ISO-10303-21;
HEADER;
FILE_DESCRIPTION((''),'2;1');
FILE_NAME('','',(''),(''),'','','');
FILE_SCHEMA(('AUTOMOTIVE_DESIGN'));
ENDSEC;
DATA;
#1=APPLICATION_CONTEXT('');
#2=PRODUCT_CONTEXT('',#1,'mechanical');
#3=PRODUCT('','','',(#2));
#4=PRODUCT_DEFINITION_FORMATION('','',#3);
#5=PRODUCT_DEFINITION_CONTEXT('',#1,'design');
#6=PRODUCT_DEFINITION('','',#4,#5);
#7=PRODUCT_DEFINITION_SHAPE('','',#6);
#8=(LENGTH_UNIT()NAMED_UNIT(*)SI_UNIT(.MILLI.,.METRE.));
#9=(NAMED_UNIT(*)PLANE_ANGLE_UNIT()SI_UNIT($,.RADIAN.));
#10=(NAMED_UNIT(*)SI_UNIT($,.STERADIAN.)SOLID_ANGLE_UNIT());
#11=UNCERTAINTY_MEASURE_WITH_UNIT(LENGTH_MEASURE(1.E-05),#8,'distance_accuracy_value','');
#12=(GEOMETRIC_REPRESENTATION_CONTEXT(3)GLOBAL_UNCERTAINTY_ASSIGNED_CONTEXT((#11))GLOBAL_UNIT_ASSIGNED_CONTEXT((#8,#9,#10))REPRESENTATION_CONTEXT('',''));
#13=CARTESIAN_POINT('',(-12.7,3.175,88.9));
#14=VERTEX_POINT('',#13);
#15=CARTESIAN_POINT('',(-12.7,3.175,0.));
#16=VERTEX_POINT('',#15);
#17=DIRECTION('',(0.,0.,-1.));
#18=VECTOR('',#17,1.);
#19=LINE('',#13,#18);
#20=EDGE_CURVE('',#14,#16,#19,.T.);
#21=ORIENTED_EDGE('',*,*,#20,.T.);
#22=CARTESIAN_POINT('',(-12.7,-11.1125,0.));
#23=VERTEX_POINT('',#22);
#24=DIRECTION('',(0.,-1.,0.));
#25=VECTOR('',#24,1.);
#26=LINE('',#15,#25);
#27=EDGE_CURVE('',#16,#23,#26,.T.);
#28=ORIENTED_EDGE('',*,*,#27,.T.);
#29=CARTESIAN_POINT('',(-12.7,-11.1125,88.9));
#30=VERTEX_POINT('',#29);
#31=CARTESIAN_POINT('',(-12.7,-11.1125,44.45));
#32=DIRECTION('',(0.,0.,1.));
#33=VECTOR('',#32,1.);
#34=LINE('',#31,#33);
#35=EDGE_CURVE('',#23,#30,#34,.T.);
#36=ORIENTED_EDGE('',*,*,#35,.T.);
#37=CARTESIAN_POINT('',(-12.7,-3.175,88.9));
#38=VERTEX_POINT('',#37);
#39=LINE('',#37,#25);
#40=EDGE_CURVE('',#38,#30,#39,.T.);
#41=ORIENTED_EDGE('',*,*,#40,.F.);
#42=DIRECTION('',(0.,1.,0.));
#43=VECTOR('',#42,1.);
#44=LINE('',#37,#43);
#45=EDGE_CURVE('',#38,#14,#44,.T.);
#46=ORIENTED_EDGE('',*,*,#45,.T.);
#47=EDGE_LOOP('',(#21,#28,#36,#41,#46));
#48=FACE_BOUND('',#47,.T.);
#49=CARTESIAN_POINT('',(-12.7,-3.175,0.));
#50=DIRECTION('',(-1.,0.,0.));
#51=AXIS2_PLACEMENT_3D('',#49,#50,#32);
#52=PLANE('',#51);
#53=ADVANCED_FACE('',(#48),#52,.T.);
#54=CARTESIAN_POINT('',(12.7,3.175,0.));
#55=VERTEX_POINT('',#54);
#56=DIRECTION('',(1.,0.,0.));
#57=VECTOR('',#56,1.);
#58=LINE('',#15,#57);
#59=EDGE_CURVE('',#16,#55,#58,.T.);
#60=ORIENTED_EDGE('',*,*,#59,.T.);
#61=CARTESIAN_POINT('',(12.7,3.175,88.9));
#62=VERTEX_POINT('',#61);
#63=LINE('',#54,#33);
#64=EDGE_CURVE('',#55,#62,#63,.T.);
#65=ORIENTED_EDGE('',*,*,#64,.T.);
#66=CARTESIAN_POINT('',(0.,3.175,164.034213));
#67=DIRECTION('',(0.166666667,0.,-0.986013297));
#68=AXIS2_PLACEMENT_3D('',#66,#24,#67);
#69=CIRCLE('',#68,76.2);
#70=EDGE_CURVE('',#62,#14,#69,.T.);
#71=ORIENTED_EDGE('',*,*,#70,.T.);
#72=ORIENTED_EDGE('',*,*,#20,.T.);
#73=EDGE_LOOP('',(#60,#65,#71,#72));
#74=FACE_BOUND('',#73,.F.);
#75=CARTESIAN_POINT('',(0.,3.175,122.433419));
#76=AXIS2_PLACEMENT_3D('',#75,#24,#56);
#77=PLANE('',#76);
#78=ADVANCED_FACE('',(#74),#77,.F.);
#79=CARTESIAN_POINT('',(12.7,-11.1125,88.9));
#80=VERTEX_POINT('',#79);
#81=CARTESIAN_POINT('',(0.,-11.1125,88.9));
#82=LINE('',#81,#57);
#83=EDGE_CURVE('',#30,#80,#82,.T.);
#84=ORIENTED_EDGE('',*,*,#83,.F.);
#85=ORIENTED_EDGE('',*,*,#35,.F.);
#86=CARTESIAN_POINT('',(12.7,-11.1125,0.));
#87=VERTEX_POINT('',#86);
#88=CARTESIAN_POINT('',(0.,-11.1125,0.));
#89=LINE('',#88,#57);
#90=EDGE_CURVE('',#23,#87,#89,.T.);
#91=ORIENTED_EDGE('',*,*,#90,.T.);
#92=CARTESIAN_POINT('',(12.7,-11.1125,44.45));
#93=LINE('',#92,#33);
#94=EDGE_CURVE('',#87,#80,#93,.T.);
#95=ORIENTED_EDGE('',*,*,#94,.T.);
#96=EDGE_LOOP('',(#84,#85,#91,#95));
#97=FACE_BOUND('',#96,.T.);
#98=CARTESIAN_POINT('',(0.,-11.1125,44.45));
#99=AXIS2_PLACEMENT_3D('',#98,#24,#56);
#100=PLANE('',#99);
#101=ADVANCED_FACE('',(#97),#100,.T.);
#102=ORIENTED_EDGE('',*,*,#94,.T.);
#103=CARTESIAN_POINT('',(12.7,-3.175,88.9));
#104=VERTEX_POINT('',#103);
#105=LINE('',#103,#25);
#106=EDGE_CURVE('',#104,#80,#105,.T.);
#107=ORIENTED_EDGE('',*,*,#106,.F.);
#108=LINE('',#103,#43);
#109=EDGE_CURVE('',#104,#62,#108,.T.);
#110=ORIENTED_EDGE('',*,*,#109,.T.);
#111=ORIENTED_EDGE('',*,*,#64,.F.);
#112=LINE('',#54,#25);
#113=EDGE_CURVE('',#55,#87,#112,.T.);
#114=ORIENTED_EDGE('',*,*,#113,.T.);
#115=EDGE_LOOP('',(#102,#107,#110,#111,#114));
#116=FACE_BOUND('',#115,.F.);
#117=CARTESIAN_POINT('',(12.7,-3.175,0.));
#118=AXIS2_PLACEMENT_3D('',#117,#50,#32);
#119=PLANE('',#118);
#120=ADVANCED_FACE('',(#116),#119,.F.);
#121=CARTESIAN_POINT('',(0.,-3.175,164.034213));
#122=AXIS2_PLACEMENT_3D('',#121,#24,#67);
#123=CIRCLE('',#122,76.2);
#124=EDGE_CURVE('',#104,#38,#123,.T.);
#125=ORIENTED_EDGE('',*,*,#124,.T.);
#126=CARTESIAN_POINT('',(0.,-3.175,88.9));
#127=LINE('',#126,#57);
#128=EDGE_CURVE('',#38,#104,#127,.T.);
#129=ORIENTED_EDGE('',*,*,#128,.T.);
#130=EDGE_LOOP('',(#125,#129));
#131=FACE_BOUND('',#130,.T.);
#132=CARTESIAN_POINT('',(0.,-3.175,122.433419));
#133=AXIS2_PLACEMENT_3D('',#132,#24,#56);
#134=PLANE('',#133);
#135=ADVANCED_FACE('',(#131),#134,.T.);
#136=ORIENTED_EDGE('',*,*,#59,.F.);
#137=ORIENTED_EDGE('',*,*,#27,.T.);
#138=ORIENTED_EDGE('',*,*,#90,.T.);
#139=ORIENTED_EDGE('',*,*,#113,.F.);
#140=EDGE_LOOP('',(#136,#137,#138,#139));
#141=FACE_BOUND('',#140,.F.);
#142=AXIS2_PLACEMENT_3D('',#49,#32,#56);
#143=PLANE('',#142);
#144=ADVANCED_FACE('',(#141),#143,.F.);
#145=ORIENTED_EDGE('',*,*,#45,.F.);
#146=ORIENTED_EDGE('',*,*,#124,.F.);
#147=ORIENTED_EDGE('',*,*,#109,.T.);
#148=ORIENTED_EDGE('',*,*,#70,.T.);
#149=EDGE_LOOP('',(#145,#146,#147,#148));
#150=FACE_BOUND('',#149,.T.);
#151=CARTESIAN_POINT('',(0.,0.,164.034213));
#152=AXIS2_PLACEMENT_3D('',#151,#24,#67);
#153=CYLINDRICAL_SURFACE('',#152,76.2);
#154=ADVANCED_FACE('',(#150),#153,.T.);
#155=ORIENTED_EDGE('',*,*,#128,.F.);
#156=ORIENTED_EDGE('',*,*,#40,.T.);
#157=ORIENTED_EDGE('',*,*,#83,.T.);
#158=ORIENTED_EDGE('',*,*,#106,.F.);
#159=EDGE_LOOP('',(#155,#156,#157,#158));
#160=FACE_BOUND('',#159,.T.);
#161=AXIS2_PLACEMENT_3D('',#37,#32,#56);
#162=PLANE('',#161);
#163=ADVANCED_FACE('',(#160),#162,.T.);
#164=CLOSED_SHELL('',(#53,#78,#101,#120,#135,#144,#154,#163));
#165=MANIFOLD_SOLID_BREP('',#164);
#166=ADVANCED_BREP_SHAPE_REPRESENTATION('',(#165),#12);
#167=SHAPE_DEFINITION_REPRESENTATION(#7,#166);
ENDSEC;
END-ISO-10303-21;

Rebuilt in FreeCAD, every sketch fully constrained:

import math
import FreeCAD as App
import Part
import Sketcher
from FreeCAD import Vector
Q = App.Units.Quantity


def add_polygon(sketch, points):
    """Adds a closed chain of lines whose ends are joined by coincident constraints."""
    first, n = sketch.GeometryCount, len(points)
    for a, b in zip(points, points[1:] + points[:1]):
        sketch.addGeometry(Part.LineSegment(App.Vector(*a, 0), App.Vector(*b, 0)), False)
    for i in range(n):
        sketch.addConstraint(Sketcher.Constraint("Coincident", first + i, 2, first + (i + 1) % n, 1))

doc = App.newDocument("Part")
body = doc.addObject("PartDesign::Body", "Body")

sketch1 = doc.addObject("Sketcher::SketchObject", "Sketch")
body.addObject(sketch1)
sketch1.AttachmentSupport = (doc.XZ_Plane, [""])
sketch1.MapMode = "FlatFace"
sketch1.addGeometry([
    Part.LineSegment(Vector(-13, 89, 0), Vector(-13, 0, 0)),
    Part.LineSegment(Vector(-13, 0, 0), Vector(13, 0, 0)),
    Part.LineSegment(Vector(13, 0, 0), Vector(13, 89, 0)),
    Part.ArcOfCircle(Part.Circle(Vector(0, 164, 0), Vector(0, 0, 1), 76), math.radians(-80), math.radians(260)),
], False)
sketch1.addConstraint([
    Sketcher.Constraint("Coincident", 0, 2, 1, 1),
    Sketcher.Constraint("Coincident", 1, 2, 2, 1),
    Sketcher.Constraint("Coincident", 2, 2, 3, 1),
    Sketcher.Constraint("Coincident", 3, 2, 0, 1),
    Sketcher.Constraint("Vertical", 0),
    Sketcher.Constraint("Horizontal", 1),
    Sketcher.Constraint("Vertical", 2),
    Sketcher.Constraint("Symmetric", 0, 2, 1, 2, -1, 1),
    Sketcher.Constraint("PointOnObject", 3, 3, -2),
    Sketcher.Constraint("Radius", 3, Q("3 in")),
    Sketcher.Constraint("DistanceX", 1, 1, 1, 2, Q("1 in")),
    Sketcher.Constraint("DistanceY", 0, 2, 0, 1, Q("3.5 in")),
])
pad1 = doc.addObject("PartDesign::Pad", "Pad")
body.addObject(pad1)
pad1.Profile = sketch1
pad1.Length = Q("0.25 in")
pad1.Midplane = True

sketch2 = doc.addObject("Sketcher::SketchObject", "Sketch001")
body.addObject(sketch2)
sketch2.AttachmentSupport = (doc.XZ_Plane, [""])
sketch2.MapMode = "FlatFace"
sketch2.AttachmentOffset = App.Placement(Vector(0, 0, 0.125 * 25.4), App.Rotation())
add_polygon(sketch2, [(-13, 89), (-13, 0), (13, 0), (13, 89)])
sketch2.addConstraint([
    Sketcher.Constraint("Vertical", 0),
    Sketcher.Constraint("Horizontal", 1),
    Sketcher.Constraint("Vertical", 2),
    Sketcher.Constraint("Horizontal", 3),
    Sketcher.Constraint("Symmetric", 0, 2, 1, 2, -1, 1),
    Sketcher.Constraint("DistanceX", 1, 1, 1, 2, Q("1 in")),
    Sketcher.Constraint("DistanceY", 0, 2, 0, 1, Q("3.5 in")),
])
pad2 = doc.addObject("PartDesign::Pad", "Pad001")
body.addObject(pad2)
pad2.Profile = sketch2
pad2.Length = Q("0.3125 in")

doc.recompute()
